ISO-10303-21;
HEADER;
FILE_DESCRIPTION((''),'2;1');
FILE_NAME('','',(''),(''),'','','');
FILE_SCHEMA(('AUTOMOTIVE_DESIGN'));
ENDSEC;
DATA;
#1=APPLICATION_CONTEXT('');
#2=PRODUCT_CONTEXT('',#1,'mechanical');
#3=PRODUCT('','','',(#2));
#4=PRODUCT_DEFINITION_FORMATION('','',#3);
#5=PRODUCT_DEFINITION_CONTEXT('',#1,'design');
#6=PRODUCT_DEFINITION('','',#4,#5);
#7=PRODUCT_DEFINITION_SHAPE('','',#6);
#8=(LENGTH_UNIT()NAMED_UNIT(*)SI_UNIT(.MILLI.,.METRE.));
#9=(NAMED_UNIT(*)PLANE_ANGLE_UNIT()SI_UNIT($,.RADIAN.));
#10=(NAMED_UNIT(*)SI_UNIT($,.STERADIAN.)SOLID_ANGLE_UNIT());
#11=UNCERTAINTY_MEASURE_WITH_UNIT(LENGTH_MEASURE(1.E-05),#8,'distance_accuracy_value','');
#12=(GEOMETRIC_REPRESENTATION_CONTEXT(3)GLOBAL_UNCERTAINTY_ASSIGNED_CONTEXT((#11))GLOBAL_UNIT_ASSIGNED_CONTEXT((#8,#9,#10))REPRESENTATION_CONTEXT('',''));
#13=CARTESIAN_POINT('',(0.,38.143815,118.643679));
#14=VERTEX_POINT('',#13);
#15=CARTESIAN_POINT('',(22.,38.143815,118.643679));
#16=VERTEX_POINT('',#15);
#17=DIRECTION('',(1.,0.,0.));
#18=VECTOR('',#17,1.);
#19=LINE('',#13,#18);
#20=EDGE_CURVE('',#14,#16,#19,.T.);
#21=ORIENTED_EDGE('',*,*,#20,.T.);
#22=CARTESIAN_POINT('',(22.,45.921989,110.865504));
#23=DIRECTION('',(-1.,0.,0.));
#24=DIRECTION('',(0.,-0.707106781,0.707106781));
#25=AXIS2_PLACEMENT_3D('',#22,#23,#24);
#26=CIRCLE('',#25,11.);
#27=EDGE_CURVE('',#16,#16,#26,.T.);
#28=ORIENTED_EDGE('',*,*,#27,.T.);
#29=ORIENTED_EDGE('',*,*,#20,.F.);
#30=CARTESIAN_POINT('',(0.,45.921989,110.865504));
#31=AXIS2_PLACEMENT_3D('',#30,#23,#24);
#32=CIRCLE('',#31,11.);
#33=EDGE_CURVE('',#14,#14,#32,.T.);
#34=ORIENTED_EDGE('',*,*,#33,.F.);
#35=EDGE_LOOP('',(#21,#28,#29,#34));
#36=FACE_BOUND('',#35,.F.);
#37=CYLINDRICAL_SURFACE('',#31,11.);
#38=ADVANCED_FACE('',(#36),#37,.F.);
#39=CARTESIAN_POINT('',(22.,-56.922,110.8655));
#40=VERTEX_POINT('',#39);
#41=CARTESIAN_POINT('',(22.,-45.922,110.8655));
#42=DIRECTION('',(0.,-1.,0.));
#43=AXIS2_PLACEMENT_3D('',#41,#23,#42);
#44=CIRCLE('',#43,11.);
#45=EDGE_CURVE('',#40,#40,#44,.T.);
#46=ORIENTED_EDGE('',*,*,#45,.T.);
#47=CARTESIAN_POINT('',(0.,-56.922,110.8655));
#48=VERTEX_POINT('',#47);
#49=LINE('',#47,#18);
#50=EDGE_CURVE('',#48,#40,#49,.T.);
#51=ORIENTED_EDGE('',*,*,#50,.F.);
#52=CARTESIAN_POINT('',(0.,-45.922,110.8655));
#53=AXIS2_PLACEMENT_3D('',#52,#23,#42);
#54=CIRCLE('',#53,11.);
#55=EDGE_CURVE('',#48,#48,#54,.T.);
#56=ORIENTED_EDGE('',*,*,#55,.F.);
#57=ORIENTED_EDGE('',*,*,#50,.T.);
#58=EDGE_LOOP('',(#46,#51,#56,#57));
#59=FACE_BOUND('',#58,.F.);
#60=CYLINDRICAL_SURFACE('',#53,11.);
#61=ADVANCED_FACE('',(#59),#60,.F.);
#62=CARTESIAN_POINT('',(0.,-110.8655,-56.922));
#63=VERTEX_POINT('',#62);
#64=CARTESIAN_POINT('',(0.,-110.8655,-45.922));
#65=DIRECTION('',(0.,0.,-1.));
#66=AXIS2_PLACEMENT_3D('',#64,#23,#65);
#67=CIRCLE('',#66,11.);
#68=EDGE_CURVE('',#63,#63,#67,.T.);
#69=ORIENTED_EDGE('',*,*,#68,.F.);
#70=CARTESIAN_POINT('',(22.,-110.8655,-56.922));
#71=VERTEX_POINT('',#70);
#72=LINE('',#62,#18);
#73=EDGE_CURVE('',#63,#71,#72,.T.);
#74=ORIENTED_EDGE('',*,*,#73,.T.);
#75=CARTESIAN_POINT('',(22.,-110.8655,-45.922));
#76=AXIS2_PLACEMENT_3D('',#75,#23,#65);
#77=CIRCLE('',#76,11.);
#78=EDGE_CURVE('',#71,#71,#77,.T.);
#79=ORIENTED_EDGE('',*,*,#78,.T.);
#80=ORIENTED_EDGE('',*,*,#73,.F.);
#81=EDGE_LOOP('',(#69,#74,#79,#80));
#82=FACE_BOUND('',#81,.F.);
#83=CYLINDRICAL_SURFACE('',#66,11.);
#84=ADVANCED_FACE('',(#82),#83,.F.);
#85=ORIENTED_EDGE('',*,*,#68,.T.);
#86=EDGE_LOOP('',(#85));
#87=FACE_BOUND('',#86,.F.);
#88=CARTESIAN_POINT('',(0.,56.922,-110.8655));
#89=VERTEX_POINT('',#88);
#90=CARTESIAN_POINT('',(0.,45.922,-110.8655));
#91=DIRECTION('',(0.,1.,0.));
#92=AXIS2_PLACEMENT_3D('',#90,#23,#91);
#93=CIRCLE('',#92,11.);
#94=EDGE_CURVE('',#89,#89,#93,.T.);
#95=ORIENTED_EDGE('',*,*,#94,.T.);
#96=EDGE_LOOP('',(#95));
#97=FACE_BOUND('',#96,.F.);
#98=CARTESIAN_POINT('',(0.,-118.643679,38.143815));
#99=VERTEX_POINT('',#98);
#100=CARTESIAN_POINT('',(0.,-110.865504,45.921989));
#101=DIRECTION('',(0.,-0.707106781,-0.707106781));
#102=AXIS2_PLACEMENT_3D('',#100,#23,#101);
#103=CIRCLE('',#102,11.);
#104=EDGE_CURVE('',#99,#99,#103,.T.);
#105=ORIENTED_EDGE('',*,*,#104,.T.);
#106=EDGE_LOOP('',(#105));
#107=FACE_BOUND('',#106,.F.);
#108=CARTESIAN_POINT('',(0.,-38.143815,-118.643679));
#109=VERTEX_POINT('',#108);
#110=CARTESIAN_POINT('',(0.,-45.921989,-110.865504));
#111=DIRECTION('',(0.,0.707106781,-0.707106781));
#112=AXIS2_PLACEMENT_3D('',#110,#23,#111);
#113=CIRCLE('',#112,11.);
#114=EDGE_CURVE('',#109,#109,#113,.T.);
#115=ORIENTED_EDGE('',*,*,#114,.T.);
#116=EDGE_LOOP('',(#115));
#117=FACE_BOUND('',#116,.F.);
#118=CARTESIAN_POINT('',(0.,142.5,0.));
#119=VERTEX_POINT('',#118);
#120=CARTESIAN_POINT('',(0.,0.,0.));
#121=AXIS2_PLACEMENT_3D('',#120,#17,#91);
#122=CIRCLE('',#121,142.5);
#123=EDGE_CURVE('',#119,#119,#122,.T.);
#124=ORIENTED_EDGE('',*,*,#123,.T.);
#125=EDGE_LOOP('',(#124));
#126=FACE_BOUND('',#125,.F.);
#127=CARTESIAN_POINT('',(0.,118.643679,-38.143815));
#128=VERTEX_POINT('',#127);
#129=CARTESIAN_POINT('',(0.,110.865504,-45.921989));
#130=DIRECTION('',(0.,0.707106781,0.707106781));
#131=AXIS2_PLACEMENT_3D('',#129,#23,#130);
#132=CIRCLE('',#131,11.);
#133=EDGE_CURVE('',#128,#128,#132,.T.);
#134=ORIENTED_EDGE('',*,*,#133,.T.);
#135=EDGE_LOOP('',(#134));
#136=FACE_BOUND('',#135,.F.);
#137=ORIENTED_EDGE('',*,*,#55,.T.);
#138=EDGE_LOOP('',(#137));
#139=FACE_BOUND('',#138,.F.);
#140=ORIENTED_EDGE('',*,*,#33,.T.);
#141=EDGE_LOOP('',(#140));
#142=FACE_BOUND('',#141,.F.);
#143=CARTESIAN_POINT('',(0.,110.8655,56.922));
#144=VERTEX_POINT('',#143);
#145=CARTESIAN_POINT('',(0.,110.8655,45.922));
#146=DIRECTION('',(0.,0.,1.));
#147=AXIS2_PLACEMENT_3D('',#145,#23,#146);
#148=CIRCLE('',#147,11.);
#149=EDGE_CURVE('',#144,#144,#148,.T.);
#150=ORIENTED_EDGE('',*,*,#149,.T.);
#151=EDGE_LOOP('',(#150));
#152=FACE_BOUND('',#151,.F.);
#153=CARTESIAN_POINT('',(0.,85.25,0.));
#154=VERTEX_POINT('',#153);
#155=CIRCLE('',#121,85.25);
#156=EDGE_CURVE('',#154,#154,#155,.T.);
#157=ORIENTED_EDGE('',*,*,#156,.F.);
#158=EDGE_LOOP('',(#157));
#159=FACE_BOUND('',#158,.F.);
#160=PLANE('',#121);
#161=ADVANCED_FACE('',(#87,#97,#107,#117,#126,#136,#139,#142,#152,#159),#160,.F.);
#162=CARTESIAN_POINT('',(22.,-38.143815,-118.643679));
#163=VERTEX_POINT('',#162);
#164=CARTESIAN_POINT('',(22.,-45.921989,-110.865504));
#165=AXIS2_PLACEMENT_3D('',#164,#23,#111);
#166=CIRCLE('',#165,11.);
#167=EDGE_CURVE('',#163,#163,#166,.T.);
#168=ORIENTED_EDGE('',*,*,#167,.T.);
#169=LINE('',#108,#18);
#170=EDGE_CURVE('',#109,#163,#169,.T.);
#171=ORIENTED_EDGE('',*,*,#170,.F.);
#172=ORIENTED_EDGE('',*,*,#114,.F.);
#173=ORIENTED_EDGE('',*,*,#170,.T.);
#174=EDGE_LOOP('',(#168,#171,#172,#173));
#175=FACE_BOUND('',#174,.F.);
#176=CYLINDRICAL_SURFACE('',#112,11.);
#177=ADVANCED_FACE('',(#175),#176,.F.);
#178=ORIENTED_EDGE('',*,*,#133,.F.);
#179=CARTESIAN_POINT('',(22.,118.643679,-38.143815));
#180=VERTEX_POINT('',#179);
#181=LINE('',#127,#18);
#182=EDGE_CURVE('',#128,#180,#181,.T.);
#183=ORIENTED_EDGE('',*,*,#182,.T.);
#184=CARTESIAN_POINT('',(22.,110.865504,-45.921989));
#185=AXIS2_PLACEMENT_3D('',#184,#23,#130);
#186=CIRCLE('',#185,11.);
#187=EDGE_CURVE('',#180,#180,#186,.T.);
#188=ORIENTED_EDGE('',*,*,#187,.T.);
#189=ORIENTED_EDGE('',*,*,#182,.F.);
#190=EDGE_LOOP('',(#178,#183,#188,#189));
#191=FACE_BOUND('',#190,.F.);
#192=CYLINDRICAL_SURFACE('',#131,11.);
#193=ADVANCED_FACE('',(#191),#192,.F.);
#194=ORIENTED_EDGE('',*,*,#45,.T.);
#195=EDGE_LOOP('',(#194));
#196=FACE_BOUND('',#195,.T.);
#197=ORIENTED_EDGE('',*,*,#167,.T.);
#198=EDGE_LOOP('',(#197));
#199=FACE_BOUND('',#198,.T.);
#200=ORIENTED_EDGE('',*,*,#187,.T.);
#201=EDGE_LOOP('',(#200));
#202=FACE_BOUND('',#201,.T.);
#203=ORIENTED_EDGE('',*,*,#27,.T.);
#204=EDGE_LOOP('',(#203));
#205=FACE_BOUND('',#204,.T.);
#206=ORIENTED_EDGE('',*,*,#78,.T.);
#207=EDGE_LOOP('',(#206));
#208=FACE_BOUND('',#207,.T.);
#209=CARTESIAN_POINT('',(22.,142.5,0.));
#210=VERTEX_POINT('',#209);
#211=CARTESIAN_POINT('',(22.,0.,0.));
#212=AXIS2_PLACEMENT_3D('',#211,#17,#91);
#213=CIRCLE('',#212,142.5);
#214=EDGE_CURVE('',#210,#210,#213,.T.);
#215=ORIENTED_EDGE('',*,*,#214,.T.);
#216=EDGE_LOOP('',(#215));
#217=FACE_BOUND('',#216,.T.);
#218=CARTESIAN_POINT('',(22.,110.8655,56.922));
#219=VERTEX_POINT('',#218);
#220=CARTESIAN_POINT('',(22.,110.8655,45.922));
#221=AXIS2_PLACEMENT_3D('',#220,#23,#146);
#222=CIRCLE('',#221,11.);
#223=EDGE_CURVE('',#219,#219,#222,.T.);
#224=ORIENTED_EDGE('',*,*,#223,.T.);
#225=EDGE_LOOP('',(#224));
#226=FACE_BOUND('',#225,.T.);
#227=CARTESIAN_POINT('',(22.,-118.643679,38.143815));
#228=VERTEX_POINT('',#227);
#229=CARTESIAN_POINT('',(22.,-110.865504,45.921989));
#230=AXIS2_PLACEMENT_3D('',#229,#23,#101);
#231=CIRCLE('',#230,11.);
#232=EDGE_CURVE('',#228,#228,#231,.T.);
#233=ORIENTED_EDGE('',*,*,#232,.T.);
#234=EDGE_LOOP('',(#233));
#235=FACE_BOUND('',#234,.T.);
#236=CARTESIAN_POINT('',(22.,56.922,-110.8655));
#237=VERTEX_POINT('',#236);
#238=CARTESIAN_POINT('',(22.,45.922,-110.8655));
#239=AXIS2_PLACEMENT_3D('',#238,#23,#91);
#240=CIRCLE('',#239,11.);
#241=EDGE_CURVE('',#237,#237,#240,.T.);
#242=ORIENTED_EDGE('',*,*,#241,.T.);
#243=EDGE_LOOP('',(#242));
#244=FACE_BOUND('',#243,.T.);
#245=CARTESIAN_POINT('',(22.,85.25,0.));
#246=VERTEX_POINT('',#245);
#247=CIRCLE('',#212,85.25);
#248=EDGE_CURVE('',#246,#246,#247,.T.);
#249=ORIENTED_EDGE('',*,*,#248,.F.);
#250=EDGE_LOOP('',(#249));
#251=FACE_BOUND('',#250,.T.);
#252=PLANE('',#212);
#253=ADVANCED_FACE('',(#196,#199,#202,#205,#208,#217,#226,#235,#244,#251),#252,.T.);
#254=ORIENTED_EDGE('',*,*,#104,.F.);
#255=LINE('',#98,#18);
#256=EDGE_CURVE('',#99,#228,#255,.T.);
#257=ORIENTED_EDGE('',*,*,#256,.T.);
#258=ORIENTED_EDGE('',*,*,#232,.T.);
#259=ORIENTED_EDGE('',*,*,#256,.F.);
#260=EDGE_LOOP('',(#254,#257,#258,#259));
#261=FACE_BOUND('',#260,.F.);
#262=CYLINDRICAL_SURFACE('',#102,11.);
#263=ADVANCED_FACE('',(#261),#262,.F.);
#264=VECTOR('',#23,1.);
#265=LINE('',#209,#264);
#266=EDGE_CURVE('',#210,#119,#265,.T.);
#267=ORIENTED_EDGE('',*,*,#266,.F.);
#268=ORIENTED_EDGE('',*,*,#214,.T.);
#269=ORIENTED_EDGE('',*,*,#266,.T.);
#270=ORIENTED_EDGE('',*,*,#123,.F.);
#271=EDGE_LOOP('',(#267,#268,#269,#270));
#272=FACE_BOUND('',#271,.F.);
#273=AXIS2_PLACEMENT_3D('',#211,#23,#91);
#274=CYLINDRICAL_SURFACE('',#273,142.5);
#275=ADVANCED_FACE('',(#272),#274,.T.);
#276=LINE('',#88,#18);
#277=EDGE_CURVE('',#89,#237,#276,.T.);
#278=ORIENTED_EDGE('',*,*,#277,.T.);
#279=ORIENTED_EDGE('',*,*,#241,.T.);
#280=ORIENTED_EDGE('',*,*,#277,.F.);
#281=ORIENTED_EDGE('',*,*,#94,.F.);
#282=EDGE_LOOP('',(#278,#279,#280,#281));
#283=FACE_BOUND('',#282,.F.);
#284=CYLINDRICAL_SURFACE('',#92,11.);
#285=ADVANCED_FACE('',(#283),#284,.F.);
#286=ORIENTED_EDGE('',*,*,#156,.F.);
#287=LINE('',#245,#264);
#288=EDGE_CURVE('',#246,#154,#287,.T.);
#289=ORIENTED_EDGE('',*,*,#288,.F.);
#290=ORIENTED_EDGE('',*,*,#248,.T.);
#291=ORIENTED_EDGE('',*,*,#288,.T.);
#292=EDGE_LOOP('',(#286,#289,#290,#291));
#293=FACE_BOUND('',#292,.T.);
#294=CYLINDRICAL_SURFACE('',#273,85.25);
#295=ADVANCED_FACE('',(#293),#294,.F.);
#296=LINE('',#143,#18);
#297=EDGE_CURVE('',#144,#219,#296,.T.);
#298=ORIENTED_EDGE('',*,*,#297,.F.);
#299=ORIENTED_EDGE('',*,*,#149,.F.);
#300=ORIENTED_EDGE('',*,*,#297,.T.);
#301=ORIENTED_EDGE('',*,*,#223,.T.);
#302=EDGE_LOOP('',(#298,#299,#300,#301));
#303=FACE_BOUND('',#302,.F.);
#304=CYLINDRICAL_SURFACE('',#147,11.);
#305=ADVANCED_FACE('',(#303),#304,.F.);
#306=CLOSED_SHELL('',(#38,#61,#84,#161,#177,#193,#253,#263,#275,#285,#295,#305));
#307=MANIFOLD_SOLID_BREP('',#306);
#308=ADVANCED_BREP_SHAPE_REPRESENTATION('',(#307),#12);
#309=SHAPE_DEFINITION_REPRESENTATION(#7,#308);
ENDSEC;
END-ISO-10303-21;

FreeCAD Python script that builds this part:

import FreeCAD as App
import Part
import Sketcher
Q = App.Units.Quantity

doc = App.newDocument("Part")
body = doc.addObject("PartDesign::Body", "Body")

sketch1 = body.newObject("Sketcher::SketchObject", "Sketch")
sketch1.AttachmentSupport = (doc.getObject("XY_Plane"), [""])
sketch1.MapMode = "FlatFace"
sketch1.addGeometry([
    Part.LineSegment(App.Vector(22, 85, 0), App.Vector(22, 142, 0)),
    Part.LineSegment(App.Vector(22, 142, 0), App.Vector(0, 142, 0)),
    Part.LineSegment(App.Vector(0, 142, 0), App.Vector(0, 85, 0)),
    Part.LineSegment(App.Vector(0, 85, 0), App.Vector(22, 85, 0)),
], False)
sketch1.addConstraint([
    Sketcher.Constraint("Coincident", 0, 2, 1, 1),
    Sketcher.Constraint("Coincident", 1, 2, 2, 1),
    Sketcher.Constraint("Coincident", 2, 2, 3, 1),
    Sketcher.Constraint("Coincident", 3, 2, 0, 1),
    Sketcher.Constraint("Vertical", 0),
    Sketcher.Constraint("Horizontal", 1),
    Sketcher.Constraint("Vertical", 2),
    Sketcher.Constraint("Horizontal", 3),
    Sketcher.Constraint("PointOnObject", 1, 2, -2),
    Sketcher.Constraint("DistanceX", 1, 2, 1, 1, Q("22 mm")),
    Sketcher.Constraint("DistanceY", 0, 1, 0, 2, Q("57.25 mm")),
    Sketcher.Constraint("DistanceY", -1, 1, 0, 2, Q("142.5 mm")),
])
revolution = body.newObject("PartDesign::Revolution", "Revolution")
revolution.Profile = sketch1
revolution.ReferenceAxis = (sketch1, ["H_Axis"])
revolution.Angle = 360

sketch2 = body.newObject("Sketcher::SketchObject", "Sketch001")
sketch2.AttachmentSupport = (doc.getObject("YZ_Plane"), [""])
sketch2.MapMode = "FlatFace"
sketch2.addGeometry(Part.Circle(App.Vector(111, 46, 0), App.Vector(0, 0, 1), 11), False)
sketch2.addConstraint([
    Sketcher.Constraint("Diameter", 0, Q("22 mm")),
    Sketcher.Constraint("DistanceY", -1, 1, 0, 3, Q("45.922 mm")),
    Sketcher.Constraint("DistanceX", -1, 1, 0, 3, Q("110.8655 mm")),
])
pocket1 = body.newObject("PartDesign::Pocket", "Pocket")
pocket1.Profile = sketch2
pocket1.Type = "ThroughAll"
pocket1.Reversed = True
doc.recompute()

polarpattern = body.newObject("PartDesign::PolarPattern", "PolarPattern")
polarpattern.Originals = [pocket1]
polarpattern.Axis = (doc.getObject("X_Axis"), [""])
polarpattern.Angle = 360
polarpattern.Occurrences = 8
body.Tip = polarpattern

doc.recompute()
